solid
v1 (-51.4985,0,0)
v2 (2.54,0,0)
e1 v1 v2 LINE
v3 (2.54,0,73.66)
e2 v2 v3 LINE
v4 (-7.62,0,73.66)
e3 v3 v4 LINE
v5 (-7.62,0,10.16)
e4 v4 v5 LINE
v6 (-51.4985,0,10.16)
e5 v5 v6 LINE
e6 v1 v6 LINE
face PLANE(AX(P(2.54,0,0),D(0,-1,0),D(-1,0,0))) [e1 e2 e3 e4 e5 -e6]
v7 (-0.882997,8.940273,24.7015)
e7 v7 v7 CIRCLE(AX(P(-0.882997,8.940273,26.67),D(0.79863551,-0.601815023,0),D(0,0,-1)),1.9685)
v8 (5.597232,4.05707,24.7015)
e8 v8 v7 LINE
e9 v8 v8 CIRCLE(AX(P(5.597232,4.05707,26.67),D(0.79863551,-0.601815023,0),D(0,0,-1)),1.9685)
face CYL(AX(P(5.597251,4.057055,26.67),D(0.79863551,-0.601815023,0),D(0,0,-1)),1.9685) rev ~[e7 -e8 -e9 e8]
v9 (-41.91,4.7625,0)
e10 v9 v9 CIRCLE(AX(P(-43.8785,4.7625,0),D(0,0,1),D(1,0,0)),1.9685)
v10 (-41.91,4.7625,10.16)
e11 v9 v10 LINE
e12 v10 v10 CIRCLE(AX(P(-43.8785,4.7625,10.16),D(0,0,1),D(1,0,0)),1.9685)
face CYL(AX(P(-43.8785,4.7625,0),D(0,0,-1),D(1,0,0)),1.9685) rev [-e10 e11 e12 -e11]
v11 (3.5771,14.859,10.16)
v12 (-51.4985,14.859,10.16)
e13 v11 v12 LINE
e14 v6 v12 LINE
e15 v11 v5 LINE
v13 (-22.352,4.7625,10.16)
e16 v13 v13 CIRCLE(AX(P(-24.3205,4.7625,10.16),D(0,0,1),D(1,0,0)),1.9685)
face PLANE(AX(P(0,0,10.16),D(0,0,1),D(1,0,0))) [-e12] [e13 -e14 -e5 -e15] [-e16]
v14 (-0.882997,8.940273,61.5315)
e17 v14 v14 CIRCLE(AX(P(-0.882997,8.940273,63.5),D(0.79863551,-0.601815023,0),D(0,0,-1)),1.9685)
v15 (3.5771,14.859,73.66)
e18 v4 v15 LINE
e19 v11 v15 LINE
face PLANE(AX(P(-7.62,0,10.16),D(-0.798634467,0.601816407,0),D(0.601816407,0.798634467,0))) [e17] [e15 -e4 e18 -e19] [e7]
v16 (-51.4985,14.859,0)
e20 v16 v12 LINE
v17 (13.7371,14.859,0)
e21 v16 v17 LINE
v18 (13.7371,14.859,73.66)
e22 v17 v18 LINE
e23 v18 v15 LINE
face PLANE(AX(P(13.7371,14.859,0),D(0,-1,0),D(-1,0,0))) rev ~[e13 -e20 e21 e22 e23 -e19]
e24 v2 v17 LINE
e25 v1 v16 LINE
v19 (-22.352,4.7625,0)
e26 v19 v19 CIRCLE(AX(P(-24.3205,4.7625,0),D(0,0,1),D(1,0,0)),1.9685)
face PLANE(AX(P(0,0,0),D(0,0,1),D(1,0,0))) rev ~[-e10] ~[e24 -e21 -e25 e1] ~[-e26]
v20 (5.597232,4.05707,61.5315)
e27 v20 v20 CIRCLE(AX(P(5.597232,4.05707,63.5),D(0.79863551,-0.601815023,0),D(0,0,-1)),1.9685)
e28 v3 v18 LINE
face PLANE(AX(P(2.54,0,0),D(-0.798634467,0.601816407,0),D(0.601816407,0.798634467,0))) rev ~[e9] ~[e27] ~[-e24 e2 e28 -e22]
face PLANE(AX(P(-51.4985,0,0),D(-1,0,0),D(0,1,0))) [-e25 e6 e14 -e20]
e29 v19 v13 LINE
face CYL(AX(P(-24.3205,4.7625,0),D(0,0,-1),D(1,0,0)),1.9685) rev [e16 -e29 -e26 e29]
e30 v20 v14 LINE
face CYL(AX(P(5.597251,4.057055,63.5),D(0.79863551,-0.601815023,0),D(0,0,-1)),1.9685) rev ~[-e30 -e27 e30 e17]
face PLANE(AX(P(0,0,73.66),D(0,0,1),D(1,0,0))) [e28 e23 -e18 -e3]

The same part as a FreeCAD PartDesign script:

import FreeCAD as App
import Part
import Sketcher
from FreeCAD import Vector
Q = App.Units.Quantity

doc = App.newDocument("Part")
body = doc.addObject("PartDesign::Body", "Body")

sketch1 = doc.addObject("Sketcher::SketchObject", "Sketch")
body.addObject(sketch1)
sketch1.AttachmentSupport = (doc.XY_Plane, [""])
sketch1.MapMode = "FlatFace"
sketch1.addGeometry([
    Part.LineSegment(Vector(-51.5, 0, 0), Vector(2.5, 0, 0)),
    Part.LineSegment(Vector(2.5, 0, 0), Vector(13.7, 14.9, 0)),
    Part.LineSegment(Vector(13.7, 14.9, 0), Vector(-51.5, 14.9, 0)),
    Part.LineSegment(Vector(-51.5, 14.9, 0), Vector(-51.5, 0, 0)),
    Part.Circle(Vector(-43.9, 4.8, 0), Vector(0, 0, 1), 2),
    Part.Circle(Vector(-24.3, 4.8, 0), Vector(0, 0, 1), 2),
], False)
sketch1.addConstraint([
    Sketcher.Constraint("Coincident", 0, 2, 1, 1),
    Sketcher.Constraint("Coincident", 1, 2, 2, 1),
    Sketcher.Constraint("Coincident", 2, 2, 3, 1),
    Sketcher.Constraint("Coincident", 3, 2, 0, 1),
    Sketcher.Constraint("Horizontal", 0),
    Sketcher.Constraint("Horizontal", 2),
    Sketcher.Constraint("Vertical", 3),
    Sketcher.Constraint("Equal", 4, 5),
    Sketcher.Constraint("PointOnObject", 0, 2, -1),
    Sketcher.Constraint("Horizontal", 4, 3, 5, 3),
    Sketcher.Constraint("Diameter", 4, Q("0.155 in")),
    Sketcher.Constraint("Angle", 1, Q("53 deg")),
    Sketcher.Constraint("DistanceX", -1, 1, 0, 2, Q("0.1 in")),
    Sketcher.Constraint("DistanceX", 2, 2, 4, 3, Q("0.3 in")),
    Sketcher.Constraint("DistanceY", 3, 2, 3, 1, Q("0.585 in")),
    Sketcher.Constraint("DistanceX", 4, 3, 5, 3, Q("0.77 in")),
    Sketcher.Constraint("DistanceX", 0, 1, 0, 2, Q("2.1275 in")),
    Sketcher.Constraint("DistanceY", -1, 1, 4, 3, Q("0.1875 in")),
])
pad1 = doc.addObject("PartDesign::Pad", "Pad")
body.addObject(pad1)
pad1.Profile = sketch1
pad1.Length = Q("0.4 in")

sketch2 = doc.addObject("Sketcher::SketchObject", "Sketch001")
body.addObject(sketch2)
sketch2.AttachmentSupport = (doc.XY_Plane, [""])
sketch2.MapMode = "FlatFace"
sketch2.AttachmentOffset = App.Placement(Vector(0, 0, 0.4 * 25.4), App.Rotation())
sketch2.addGeometry([
    Part.LineSegment(Vector(3, 0, 0), Vector(14, 15, 0)),
    Part.LineSegment(Vector(14, 15, 0), Vector(4, 15, 0)),
    Part.LineSegment(Vector(4, 15, 0), Vector(-8, 0, 0)),
    Part.LineSegment(Vector(-8, 0, 0), Vector(3, 0, 0)),
], False)
sketch2.addConstraint([
    Sketcher.Constraint("Coincident", 0, 2, 1, 1),
    Sketcher.Constraint("Coincident", 1, 2, 2, 1),
    Sketcher.Constraint("Coincident", 2, 2, 3, 1),
    Sketcher.Constraint("Coincident", 3, 2, 0, 1),
    Sketcher.Constraint("Horizontal", 1),
    Sketcher.Constraint("Horizontal", 3),
    Sketcher.Constraint("PointOnObject", 2, 2, -1),
    Sketcher.Constraint("Parallel", 0, 2),
    Sketcher.Constraint("Angle", 0, Q("53 deg")),
    Sketcher.Constraint("DistanceX", 1, 2, 1, 1, Q("0.4 in")),
    Sketcher.Constraint("DistanceX", 2, 2, -1, 1, Q("0.3 in")),
    Sketcher.Constraint("DistanceY", -1, 1, 0, 2, Q("0.585 in")),
])
pad2 = doc.addObject("PartDesign::Pad", "Pad001")
body.addObject(pad2)
pad2.Profile = sketch2
pad2.Type = "TwoLengths"
pad2.Length = Q("2.5 in")
pad2.Length2 = Q("0.4 in")

sketch3 = doc.addObject("Sketcher::SketchObject", "Sketch002")
body.addObject(sketch3)
sketch3.Placement = App.Placement(Vector(13.7371, 14.859, 73.66), App.Rotation(Vector(0, 0, -1), Vector(0.601815023, 0.79863551, 0), Vector(0.79863551, -0.601815023, 0), "ZXY"))
sketch3.addGeometry([
    Part.Circle(Vector(10.2, -13.5, 0), Vector(0, 0, 1), 2),
    Part.Circle(Vector(47, -13.5, 0), Vector(0, 0, 1), 2),
], False)
sketch3.addConstraint([
    Sketcher.Constraint("Equal", 0, 1),
    Sketcher.Constraint("Horizontal", 0, 3, 1, 3),
    Sketcher.Constraint("Diameter", 0, Q("0.155 in")),
    Sketcher.Constraint("DistanceX", -1, 1, 0, 3, Q("0.4 in")),
    Sketcher.Constraint("DistanceX", -1, 1, 1, 3, Q("1.85 in")),
    Sketcher.Constraint("DistanceY", 0, 3, -1, 1, Q("0.5325 in")),
])
pocket1 = doc.addObject("PartDesign::Pocket", "Pocket")
body.addObject(pocket1)
pocket1.Profile = sketch3
pocket1.Type = "ThroughAll"

doc.recompute()
